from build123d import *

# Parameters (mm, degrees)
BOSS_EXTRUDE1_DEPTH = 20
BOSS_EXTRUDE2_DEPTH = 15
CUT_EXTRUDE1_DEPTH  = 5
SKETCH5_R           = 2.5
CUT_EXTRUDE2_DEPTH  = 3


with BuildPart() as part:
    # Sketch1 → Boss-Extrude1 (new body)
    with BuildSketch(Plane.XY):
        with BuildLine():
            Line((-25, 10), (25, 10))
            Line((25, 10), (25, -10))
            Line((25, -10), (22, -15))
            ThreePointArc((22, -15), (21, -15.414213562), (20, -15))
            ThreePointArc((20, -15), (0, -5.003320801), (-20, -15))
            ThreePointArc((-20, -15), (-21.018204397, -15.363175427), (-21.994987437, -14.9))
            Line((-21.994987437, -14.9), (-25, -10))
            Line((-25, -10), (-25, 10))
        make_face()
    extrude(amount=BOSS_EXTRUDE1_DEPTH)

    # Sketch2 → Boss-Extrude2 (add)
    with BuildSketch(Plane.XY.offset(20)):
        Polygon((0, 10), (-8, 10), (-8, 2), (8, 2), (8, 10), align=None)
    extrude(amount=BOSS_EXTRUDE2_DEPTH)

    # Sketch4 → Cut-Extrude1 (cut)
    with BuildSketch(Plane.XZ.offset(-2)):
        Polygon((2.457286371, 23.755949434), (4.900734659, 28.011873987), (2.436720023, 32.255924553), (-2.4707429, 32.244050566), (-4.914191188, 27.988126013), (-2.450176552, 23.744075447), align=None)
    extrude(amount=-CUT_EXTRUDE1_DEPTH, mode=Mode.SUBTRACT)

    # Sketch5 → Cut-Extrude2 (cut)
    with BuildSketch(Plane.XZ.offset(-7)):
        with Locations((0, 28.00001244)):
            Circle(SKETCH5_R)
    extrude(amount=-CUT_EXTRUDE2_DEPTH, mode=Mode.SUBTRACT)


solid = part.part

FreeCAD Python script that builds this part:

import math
import FreeCAD as App
import Part
import Sketcher

doc = App.newDocument("Part")
body = doc.addObject("PartDesign::Body", "Body")

# Sketch on XY plane
sketch1 = body.newObject("Sketcher::SketchObject", "Sketch")
sketch1.AttachmentSupport = (doc.getObject("XY_Plane"), [""])
sketch1.MapMode = "FlatFace"
sketch1.addGeometry(Part.LineSegment(App.Vector(25, 10, 0), App.Vector(-25, 10, 0)), False)
sketch1.addGeometry(Part.LineSegment(App.Vector(-25, 10, 0), App.Vector(-25, -10, 0)), False)
sketch1.addGeometry(Part.LineSegment(App.Vector(-25, -10, 0), App.Vector(-22, -14.9, 0)), False)
sketch1.addGeometry(Part.ArcOfCircle(Part.Circle(App.Vector(-20.9, -14, 0), App.Vector(0, 0, 1), 1.4), math.radians(-138), math.radians(-48)), False)
sketch1.addGeometry(Part.ArcOfCircle(Part.Circle(App.Vector(0, -30, 0), App.Vector(0, 0, 1), 25), math.radians(37), math.radians(143)), False)
sketch1.addGeometry(Part.ArcOfCircle(Part.Circle(App.Vector(21, -14, 0), App.Vector(0, 0, 1), 1.4), math.radians(-135), math.radians(-45)), False)
sketch1.addGeometry(Part.LineSegment(App.Vector(22, -15, 0), App.Vector(25, -10, 0)), False)
sketch1.addGeometry(Part.LineSegment(App.Vector(25, -10, 0), App.Vector(25, 10, 0)), False)
sketch1.addConstraint(Sketcher.Constraint("Coincident", 0, 2, 1, 1))
sketch1.addConstraint(Sketcher.Constraint("Coincident", 1, 2, 2, 1))
sketch1.addConstraint(Sketcher.Constraint("Coincident", 2, 2, 3, 1))
sketch1.addConstraint(Sketcher.Constraint("Coincident", 3, 2, 4, 2))
sketch1.addConstraint(Sketcher.Constraint("Coincident", 4, 1, 5, 1))
sketch1.addConstraint(Sketcher.Constraint("Coincident", 5, 2, 6, 1))
sketch1.addConstraint(Sketcher.Constraint("Coincident", 6, 2, 7, 1))
sketch1.addConstraint(Sketcher.Constraint("Coincident", 7, 2, 0, 1))
sketch1.addConstraint(Sketcher.Constraint("Horizontal", 0))
sketch1.addConstraint(Sketcher.Constraint("Vertical", 1))
sketch1.addConstraint(Sketcher.Constraint("Vertical", 7))
sketch1.addConstraint(Sketcher.Constraint("Symmetric", 0, 2, 6, 2, -1, 1))
sketch1.addConstraint(Sketcher.Constraint("Symmetric", 3, 2, 4, 1, -2))
sketch1.addConstraint(Sketcher.Constraint("Horizontal", 4, 1, 5, 2))
sketch1.addConstraint(Sketcher.Constraint("Horizontal", 1, 2, 6, 2))
sketch1.addConstraint(Sketcher.Constraint("DistanceX", 0, 2, 0, 1, 50.0))
sketch1.addConstraint(Sketcher.Constraint("DistanceY", 1, 2, 1, 1, 20.0))
sketch1.addConstraint(Sketcher.Constraint("DistanceX", -1, 1, 5, 3, 21.0))
sketch1.addConstraint(Sketcher.Constraint("DistanceY", 5, 3, -1, 1, 14.0))
sketch1.addConstraint(Sketcher.Constraint("DistanceX", 3, 2, -1, 1, 20.0))
sketch1.addConstraint(Sketcher.Constraint("DistanceY", 3, 2, -1, 1, 15.0))
sketch1.addConstraint(Sketcher.Constraint("DistanceY", 2, 2, -1, 1, 14.9))
sketch1.addConstraint(Sketcher.Constraint("Radius", 3, 1.41244))
sketch1.addConstraint(Sketcher.Constraint("Radius", 4, 25.004983))
sketch1.addConstraint(Sketcher.Constraint("Distance", 2, 5.748052))
pad1 = body.newObject("PartDesign::Pad", "Pad")
pad1.Profile = sketch1
pad1.Length = 20

# Sketch on XY plane
sketch2 = body.newObject("Sketcher::SketchObject", "Sketch001")
sketch2.AttachmentSupport = (doc.getObject("XY_Plane"), [""])
sketch2.MapMode = "FlatFace"
sketch2.AttachmentOffset = App.Placement(App.Vector(0, 0, 20), App.Rotation())
sketch2.addGeometry(Part.LineSegment(App.Vector(-8, 10, 0), App.Vector(-8, 2, 0)), False)
sketch2.addGeometry(Part.LineSegment(App.Vector(-8, 2, 0), App.Vector(8, 2, 0)), False)
sketch2.addGeometry(Part.LineSegment(App.Vector(8, 2, 0), App.Vector(8, 10, 0)), False)
sketch2.addGeometry(Part.LineSegment(App.Vector(8, 10, 0), App.Vector(-8, 10, 0)), False)
sketch2.addConstraint(Sketcher.Constraint("Coincident", 0, 2, 1, 1))
sketch2.addConstraint(Sketcher.Constraint("Coincident", 1, 2, 2, 1))
sketch2.addConstraint(Sketcher.Constraint("Coincident", 2, 2, 3, 1))
sketch2.addConstraint(Sketcher.Constraint("Coincident", 3, 2, 0, 1))
sketch2.addConstraint(Sketcher.Constraint("Vertical", 0))
sketch2.addConstraint(Sketcher.Constraint("Horizontal", 1))
sketch2.addConstraint(Sketcher.Constraint("Vertical", 2))
sketch2.addConstraint(Sketcher.Constraint("Horizontal", 3))
sketch2.addConstraint(Sketcher.Constraint("DistanceX", 1, 1, 1, 2, 16.0))
sketch2.addConstraint(Sketcher.Constraint("DistanceY", 0, 2, 0, 1, 8.0))
sketch2.addConstraint(Sketcher.Constraint("DistanceX", 0, 2, -1, 1, 8.0))
sketch2.addConstraint(Sketcher.Constraint("DistanceY", -1, 1, 0, 2, 2.0))
pad2 = body.newObject("PartDesign::Pad", "Pad001")
pad2.Profile = sketch2
pad2.Length = 15

# Sketch on XZ plane
sketch3 = body.newObject("Sketcher::SketchObject", "Sketch002")
sketch3.AttachmentSupport = (doc.getObject("XZ_Plane"), [""])
sketch3.MapMode = "FlatFace"
sketch3.AttachmentOffset = App.Placement(App.Vector(0, 0, -2), App.Rotation())
sketch3.addGeometry(Part.LineSegment(App.Vector(2.5, 23.8, 0), App.Vector(4.9, 28, 0)), False)
sketch3.addGeometry(Part.LineSegment(App.Vector(4.9, 28, 0), App.Vector(2.4, 32.3, 0)), False)
sketch3.addGeometry(Part.LineSegment(App.Vector(2.4, 32.3, 0), App.Vector(-2.5, 32.2, 0)), False)
sketch3.addGeometry(Part.LineSegment(App.Vector(-2.5, 32.2, 0), App.Vector(-4.9, 28, 0)), False)
sketch3.addGeometry(Part.LineSegment(App.Vector(-4.9, 28, 0), App.Vector(-2.5, 23.7, 0)), False)
sketch3.addGeometry(Part.LineSegment(App.Vector(-2.5, 23.7, 0), App.Vector(2.5, 23.8, 0)), False)
sketch3.addConstraint(Sketcher.Constraint("Coincident", 0, 2, 1, 1))
sketch3.addConstraint(Sketcher.Constraint("Coincident", 1, 2, 2, 1))
sketch3.addConstraint(Sketcher.Constraint("Coincident", 2, 2, 3, 1))
sketch3.addConstraint(Sketcher.Constraint("Coincident", 3, 2, 4, 1))
sketch3.addConstraint(Sketcher.Constraint("Coincident", 4, 2, 5, 1))
sketch3.addConstraint(Sketcher.Constraint("Coincident", 5, 2, 0, 1))
sketch3.addConstraint(Sketcher.Constraint("Parallel", 0, 3))
sketch3.addConstraint(Sketcher.Constraint("Parallel", 1, 4))
sketch3.addConstraint(Sketcher.Constraint("Parallel", 2, 5))
sketch3.addConstraint(Sketcher.Constraint("Equal", 0, 1))
sketch3.addConstraint(Sketcher.Constraint("Equal", 1, 2))
sketch3.addConstraint(Sketcher.Constraint("Equal", 2, 3))
sketch3.addConstraint(Sketcher.Constraint("DistanceY", 3, 2, 1, 2, 4.267799))
sketch3.addConstraint(Sketcher.Constraint("DistanceY", 5, 2, 2, 2, 8.488101))
sketch3.addConstraint(Sketcher.Constraint("DistanceX", -1, 1, 1, 2, 2.43672))
sketch3.addConstraint(Sketcher.Constraint("DistanceY", -1, 1, 2, 2, 32.244051))
sketch3.addConstraint(Sketcher.Constraint("DistanceX", 3, 2, -1, 1, 4.914191))
sketch3.addConstraint(Sketcher.Constraint("DistanceY", 0, 2, 1, 2, 4.244051))
pocket1 = body.newObject("PartDesign::Pocket", "Pocket")
pocket1.Profile = sketch3
pocket1.Length = 5

# Sketch on XZ plane
sketch4 = body.newObject("Sketcher::SketchObject", "Sketch003")
sketch4.AttachmentSupport = (doc.getObject("XZ_Plane"), [""])
sketch4.MapMode = "FlatFace"
sketch4.AttachmentOffset = App.Placement(App.Vector(0, 0, -7), App.Rotation())
sketch4.addGeometry(Part.Circle(App.Vector(0, 28, 0), App.Vector(0, 0, 1), 2.5), False)
sketch4.addConstraint(Sketcher.Constraint("PointOnObject", 0, 3, -2))
sketch4.addConstraint(Sketcher.Constraint("Diameter", 0, 5.0))
sketch4.addConstraint(Sketcher.Constraint("DistanceY", -1, 1, 0, 3, 28.000012))
pocket2 = body.newObject("PartDesign::Pocket", "Pocket001")
pocket2.Profile = sketch4
pocket2.Length = 3

doc.recompute()
